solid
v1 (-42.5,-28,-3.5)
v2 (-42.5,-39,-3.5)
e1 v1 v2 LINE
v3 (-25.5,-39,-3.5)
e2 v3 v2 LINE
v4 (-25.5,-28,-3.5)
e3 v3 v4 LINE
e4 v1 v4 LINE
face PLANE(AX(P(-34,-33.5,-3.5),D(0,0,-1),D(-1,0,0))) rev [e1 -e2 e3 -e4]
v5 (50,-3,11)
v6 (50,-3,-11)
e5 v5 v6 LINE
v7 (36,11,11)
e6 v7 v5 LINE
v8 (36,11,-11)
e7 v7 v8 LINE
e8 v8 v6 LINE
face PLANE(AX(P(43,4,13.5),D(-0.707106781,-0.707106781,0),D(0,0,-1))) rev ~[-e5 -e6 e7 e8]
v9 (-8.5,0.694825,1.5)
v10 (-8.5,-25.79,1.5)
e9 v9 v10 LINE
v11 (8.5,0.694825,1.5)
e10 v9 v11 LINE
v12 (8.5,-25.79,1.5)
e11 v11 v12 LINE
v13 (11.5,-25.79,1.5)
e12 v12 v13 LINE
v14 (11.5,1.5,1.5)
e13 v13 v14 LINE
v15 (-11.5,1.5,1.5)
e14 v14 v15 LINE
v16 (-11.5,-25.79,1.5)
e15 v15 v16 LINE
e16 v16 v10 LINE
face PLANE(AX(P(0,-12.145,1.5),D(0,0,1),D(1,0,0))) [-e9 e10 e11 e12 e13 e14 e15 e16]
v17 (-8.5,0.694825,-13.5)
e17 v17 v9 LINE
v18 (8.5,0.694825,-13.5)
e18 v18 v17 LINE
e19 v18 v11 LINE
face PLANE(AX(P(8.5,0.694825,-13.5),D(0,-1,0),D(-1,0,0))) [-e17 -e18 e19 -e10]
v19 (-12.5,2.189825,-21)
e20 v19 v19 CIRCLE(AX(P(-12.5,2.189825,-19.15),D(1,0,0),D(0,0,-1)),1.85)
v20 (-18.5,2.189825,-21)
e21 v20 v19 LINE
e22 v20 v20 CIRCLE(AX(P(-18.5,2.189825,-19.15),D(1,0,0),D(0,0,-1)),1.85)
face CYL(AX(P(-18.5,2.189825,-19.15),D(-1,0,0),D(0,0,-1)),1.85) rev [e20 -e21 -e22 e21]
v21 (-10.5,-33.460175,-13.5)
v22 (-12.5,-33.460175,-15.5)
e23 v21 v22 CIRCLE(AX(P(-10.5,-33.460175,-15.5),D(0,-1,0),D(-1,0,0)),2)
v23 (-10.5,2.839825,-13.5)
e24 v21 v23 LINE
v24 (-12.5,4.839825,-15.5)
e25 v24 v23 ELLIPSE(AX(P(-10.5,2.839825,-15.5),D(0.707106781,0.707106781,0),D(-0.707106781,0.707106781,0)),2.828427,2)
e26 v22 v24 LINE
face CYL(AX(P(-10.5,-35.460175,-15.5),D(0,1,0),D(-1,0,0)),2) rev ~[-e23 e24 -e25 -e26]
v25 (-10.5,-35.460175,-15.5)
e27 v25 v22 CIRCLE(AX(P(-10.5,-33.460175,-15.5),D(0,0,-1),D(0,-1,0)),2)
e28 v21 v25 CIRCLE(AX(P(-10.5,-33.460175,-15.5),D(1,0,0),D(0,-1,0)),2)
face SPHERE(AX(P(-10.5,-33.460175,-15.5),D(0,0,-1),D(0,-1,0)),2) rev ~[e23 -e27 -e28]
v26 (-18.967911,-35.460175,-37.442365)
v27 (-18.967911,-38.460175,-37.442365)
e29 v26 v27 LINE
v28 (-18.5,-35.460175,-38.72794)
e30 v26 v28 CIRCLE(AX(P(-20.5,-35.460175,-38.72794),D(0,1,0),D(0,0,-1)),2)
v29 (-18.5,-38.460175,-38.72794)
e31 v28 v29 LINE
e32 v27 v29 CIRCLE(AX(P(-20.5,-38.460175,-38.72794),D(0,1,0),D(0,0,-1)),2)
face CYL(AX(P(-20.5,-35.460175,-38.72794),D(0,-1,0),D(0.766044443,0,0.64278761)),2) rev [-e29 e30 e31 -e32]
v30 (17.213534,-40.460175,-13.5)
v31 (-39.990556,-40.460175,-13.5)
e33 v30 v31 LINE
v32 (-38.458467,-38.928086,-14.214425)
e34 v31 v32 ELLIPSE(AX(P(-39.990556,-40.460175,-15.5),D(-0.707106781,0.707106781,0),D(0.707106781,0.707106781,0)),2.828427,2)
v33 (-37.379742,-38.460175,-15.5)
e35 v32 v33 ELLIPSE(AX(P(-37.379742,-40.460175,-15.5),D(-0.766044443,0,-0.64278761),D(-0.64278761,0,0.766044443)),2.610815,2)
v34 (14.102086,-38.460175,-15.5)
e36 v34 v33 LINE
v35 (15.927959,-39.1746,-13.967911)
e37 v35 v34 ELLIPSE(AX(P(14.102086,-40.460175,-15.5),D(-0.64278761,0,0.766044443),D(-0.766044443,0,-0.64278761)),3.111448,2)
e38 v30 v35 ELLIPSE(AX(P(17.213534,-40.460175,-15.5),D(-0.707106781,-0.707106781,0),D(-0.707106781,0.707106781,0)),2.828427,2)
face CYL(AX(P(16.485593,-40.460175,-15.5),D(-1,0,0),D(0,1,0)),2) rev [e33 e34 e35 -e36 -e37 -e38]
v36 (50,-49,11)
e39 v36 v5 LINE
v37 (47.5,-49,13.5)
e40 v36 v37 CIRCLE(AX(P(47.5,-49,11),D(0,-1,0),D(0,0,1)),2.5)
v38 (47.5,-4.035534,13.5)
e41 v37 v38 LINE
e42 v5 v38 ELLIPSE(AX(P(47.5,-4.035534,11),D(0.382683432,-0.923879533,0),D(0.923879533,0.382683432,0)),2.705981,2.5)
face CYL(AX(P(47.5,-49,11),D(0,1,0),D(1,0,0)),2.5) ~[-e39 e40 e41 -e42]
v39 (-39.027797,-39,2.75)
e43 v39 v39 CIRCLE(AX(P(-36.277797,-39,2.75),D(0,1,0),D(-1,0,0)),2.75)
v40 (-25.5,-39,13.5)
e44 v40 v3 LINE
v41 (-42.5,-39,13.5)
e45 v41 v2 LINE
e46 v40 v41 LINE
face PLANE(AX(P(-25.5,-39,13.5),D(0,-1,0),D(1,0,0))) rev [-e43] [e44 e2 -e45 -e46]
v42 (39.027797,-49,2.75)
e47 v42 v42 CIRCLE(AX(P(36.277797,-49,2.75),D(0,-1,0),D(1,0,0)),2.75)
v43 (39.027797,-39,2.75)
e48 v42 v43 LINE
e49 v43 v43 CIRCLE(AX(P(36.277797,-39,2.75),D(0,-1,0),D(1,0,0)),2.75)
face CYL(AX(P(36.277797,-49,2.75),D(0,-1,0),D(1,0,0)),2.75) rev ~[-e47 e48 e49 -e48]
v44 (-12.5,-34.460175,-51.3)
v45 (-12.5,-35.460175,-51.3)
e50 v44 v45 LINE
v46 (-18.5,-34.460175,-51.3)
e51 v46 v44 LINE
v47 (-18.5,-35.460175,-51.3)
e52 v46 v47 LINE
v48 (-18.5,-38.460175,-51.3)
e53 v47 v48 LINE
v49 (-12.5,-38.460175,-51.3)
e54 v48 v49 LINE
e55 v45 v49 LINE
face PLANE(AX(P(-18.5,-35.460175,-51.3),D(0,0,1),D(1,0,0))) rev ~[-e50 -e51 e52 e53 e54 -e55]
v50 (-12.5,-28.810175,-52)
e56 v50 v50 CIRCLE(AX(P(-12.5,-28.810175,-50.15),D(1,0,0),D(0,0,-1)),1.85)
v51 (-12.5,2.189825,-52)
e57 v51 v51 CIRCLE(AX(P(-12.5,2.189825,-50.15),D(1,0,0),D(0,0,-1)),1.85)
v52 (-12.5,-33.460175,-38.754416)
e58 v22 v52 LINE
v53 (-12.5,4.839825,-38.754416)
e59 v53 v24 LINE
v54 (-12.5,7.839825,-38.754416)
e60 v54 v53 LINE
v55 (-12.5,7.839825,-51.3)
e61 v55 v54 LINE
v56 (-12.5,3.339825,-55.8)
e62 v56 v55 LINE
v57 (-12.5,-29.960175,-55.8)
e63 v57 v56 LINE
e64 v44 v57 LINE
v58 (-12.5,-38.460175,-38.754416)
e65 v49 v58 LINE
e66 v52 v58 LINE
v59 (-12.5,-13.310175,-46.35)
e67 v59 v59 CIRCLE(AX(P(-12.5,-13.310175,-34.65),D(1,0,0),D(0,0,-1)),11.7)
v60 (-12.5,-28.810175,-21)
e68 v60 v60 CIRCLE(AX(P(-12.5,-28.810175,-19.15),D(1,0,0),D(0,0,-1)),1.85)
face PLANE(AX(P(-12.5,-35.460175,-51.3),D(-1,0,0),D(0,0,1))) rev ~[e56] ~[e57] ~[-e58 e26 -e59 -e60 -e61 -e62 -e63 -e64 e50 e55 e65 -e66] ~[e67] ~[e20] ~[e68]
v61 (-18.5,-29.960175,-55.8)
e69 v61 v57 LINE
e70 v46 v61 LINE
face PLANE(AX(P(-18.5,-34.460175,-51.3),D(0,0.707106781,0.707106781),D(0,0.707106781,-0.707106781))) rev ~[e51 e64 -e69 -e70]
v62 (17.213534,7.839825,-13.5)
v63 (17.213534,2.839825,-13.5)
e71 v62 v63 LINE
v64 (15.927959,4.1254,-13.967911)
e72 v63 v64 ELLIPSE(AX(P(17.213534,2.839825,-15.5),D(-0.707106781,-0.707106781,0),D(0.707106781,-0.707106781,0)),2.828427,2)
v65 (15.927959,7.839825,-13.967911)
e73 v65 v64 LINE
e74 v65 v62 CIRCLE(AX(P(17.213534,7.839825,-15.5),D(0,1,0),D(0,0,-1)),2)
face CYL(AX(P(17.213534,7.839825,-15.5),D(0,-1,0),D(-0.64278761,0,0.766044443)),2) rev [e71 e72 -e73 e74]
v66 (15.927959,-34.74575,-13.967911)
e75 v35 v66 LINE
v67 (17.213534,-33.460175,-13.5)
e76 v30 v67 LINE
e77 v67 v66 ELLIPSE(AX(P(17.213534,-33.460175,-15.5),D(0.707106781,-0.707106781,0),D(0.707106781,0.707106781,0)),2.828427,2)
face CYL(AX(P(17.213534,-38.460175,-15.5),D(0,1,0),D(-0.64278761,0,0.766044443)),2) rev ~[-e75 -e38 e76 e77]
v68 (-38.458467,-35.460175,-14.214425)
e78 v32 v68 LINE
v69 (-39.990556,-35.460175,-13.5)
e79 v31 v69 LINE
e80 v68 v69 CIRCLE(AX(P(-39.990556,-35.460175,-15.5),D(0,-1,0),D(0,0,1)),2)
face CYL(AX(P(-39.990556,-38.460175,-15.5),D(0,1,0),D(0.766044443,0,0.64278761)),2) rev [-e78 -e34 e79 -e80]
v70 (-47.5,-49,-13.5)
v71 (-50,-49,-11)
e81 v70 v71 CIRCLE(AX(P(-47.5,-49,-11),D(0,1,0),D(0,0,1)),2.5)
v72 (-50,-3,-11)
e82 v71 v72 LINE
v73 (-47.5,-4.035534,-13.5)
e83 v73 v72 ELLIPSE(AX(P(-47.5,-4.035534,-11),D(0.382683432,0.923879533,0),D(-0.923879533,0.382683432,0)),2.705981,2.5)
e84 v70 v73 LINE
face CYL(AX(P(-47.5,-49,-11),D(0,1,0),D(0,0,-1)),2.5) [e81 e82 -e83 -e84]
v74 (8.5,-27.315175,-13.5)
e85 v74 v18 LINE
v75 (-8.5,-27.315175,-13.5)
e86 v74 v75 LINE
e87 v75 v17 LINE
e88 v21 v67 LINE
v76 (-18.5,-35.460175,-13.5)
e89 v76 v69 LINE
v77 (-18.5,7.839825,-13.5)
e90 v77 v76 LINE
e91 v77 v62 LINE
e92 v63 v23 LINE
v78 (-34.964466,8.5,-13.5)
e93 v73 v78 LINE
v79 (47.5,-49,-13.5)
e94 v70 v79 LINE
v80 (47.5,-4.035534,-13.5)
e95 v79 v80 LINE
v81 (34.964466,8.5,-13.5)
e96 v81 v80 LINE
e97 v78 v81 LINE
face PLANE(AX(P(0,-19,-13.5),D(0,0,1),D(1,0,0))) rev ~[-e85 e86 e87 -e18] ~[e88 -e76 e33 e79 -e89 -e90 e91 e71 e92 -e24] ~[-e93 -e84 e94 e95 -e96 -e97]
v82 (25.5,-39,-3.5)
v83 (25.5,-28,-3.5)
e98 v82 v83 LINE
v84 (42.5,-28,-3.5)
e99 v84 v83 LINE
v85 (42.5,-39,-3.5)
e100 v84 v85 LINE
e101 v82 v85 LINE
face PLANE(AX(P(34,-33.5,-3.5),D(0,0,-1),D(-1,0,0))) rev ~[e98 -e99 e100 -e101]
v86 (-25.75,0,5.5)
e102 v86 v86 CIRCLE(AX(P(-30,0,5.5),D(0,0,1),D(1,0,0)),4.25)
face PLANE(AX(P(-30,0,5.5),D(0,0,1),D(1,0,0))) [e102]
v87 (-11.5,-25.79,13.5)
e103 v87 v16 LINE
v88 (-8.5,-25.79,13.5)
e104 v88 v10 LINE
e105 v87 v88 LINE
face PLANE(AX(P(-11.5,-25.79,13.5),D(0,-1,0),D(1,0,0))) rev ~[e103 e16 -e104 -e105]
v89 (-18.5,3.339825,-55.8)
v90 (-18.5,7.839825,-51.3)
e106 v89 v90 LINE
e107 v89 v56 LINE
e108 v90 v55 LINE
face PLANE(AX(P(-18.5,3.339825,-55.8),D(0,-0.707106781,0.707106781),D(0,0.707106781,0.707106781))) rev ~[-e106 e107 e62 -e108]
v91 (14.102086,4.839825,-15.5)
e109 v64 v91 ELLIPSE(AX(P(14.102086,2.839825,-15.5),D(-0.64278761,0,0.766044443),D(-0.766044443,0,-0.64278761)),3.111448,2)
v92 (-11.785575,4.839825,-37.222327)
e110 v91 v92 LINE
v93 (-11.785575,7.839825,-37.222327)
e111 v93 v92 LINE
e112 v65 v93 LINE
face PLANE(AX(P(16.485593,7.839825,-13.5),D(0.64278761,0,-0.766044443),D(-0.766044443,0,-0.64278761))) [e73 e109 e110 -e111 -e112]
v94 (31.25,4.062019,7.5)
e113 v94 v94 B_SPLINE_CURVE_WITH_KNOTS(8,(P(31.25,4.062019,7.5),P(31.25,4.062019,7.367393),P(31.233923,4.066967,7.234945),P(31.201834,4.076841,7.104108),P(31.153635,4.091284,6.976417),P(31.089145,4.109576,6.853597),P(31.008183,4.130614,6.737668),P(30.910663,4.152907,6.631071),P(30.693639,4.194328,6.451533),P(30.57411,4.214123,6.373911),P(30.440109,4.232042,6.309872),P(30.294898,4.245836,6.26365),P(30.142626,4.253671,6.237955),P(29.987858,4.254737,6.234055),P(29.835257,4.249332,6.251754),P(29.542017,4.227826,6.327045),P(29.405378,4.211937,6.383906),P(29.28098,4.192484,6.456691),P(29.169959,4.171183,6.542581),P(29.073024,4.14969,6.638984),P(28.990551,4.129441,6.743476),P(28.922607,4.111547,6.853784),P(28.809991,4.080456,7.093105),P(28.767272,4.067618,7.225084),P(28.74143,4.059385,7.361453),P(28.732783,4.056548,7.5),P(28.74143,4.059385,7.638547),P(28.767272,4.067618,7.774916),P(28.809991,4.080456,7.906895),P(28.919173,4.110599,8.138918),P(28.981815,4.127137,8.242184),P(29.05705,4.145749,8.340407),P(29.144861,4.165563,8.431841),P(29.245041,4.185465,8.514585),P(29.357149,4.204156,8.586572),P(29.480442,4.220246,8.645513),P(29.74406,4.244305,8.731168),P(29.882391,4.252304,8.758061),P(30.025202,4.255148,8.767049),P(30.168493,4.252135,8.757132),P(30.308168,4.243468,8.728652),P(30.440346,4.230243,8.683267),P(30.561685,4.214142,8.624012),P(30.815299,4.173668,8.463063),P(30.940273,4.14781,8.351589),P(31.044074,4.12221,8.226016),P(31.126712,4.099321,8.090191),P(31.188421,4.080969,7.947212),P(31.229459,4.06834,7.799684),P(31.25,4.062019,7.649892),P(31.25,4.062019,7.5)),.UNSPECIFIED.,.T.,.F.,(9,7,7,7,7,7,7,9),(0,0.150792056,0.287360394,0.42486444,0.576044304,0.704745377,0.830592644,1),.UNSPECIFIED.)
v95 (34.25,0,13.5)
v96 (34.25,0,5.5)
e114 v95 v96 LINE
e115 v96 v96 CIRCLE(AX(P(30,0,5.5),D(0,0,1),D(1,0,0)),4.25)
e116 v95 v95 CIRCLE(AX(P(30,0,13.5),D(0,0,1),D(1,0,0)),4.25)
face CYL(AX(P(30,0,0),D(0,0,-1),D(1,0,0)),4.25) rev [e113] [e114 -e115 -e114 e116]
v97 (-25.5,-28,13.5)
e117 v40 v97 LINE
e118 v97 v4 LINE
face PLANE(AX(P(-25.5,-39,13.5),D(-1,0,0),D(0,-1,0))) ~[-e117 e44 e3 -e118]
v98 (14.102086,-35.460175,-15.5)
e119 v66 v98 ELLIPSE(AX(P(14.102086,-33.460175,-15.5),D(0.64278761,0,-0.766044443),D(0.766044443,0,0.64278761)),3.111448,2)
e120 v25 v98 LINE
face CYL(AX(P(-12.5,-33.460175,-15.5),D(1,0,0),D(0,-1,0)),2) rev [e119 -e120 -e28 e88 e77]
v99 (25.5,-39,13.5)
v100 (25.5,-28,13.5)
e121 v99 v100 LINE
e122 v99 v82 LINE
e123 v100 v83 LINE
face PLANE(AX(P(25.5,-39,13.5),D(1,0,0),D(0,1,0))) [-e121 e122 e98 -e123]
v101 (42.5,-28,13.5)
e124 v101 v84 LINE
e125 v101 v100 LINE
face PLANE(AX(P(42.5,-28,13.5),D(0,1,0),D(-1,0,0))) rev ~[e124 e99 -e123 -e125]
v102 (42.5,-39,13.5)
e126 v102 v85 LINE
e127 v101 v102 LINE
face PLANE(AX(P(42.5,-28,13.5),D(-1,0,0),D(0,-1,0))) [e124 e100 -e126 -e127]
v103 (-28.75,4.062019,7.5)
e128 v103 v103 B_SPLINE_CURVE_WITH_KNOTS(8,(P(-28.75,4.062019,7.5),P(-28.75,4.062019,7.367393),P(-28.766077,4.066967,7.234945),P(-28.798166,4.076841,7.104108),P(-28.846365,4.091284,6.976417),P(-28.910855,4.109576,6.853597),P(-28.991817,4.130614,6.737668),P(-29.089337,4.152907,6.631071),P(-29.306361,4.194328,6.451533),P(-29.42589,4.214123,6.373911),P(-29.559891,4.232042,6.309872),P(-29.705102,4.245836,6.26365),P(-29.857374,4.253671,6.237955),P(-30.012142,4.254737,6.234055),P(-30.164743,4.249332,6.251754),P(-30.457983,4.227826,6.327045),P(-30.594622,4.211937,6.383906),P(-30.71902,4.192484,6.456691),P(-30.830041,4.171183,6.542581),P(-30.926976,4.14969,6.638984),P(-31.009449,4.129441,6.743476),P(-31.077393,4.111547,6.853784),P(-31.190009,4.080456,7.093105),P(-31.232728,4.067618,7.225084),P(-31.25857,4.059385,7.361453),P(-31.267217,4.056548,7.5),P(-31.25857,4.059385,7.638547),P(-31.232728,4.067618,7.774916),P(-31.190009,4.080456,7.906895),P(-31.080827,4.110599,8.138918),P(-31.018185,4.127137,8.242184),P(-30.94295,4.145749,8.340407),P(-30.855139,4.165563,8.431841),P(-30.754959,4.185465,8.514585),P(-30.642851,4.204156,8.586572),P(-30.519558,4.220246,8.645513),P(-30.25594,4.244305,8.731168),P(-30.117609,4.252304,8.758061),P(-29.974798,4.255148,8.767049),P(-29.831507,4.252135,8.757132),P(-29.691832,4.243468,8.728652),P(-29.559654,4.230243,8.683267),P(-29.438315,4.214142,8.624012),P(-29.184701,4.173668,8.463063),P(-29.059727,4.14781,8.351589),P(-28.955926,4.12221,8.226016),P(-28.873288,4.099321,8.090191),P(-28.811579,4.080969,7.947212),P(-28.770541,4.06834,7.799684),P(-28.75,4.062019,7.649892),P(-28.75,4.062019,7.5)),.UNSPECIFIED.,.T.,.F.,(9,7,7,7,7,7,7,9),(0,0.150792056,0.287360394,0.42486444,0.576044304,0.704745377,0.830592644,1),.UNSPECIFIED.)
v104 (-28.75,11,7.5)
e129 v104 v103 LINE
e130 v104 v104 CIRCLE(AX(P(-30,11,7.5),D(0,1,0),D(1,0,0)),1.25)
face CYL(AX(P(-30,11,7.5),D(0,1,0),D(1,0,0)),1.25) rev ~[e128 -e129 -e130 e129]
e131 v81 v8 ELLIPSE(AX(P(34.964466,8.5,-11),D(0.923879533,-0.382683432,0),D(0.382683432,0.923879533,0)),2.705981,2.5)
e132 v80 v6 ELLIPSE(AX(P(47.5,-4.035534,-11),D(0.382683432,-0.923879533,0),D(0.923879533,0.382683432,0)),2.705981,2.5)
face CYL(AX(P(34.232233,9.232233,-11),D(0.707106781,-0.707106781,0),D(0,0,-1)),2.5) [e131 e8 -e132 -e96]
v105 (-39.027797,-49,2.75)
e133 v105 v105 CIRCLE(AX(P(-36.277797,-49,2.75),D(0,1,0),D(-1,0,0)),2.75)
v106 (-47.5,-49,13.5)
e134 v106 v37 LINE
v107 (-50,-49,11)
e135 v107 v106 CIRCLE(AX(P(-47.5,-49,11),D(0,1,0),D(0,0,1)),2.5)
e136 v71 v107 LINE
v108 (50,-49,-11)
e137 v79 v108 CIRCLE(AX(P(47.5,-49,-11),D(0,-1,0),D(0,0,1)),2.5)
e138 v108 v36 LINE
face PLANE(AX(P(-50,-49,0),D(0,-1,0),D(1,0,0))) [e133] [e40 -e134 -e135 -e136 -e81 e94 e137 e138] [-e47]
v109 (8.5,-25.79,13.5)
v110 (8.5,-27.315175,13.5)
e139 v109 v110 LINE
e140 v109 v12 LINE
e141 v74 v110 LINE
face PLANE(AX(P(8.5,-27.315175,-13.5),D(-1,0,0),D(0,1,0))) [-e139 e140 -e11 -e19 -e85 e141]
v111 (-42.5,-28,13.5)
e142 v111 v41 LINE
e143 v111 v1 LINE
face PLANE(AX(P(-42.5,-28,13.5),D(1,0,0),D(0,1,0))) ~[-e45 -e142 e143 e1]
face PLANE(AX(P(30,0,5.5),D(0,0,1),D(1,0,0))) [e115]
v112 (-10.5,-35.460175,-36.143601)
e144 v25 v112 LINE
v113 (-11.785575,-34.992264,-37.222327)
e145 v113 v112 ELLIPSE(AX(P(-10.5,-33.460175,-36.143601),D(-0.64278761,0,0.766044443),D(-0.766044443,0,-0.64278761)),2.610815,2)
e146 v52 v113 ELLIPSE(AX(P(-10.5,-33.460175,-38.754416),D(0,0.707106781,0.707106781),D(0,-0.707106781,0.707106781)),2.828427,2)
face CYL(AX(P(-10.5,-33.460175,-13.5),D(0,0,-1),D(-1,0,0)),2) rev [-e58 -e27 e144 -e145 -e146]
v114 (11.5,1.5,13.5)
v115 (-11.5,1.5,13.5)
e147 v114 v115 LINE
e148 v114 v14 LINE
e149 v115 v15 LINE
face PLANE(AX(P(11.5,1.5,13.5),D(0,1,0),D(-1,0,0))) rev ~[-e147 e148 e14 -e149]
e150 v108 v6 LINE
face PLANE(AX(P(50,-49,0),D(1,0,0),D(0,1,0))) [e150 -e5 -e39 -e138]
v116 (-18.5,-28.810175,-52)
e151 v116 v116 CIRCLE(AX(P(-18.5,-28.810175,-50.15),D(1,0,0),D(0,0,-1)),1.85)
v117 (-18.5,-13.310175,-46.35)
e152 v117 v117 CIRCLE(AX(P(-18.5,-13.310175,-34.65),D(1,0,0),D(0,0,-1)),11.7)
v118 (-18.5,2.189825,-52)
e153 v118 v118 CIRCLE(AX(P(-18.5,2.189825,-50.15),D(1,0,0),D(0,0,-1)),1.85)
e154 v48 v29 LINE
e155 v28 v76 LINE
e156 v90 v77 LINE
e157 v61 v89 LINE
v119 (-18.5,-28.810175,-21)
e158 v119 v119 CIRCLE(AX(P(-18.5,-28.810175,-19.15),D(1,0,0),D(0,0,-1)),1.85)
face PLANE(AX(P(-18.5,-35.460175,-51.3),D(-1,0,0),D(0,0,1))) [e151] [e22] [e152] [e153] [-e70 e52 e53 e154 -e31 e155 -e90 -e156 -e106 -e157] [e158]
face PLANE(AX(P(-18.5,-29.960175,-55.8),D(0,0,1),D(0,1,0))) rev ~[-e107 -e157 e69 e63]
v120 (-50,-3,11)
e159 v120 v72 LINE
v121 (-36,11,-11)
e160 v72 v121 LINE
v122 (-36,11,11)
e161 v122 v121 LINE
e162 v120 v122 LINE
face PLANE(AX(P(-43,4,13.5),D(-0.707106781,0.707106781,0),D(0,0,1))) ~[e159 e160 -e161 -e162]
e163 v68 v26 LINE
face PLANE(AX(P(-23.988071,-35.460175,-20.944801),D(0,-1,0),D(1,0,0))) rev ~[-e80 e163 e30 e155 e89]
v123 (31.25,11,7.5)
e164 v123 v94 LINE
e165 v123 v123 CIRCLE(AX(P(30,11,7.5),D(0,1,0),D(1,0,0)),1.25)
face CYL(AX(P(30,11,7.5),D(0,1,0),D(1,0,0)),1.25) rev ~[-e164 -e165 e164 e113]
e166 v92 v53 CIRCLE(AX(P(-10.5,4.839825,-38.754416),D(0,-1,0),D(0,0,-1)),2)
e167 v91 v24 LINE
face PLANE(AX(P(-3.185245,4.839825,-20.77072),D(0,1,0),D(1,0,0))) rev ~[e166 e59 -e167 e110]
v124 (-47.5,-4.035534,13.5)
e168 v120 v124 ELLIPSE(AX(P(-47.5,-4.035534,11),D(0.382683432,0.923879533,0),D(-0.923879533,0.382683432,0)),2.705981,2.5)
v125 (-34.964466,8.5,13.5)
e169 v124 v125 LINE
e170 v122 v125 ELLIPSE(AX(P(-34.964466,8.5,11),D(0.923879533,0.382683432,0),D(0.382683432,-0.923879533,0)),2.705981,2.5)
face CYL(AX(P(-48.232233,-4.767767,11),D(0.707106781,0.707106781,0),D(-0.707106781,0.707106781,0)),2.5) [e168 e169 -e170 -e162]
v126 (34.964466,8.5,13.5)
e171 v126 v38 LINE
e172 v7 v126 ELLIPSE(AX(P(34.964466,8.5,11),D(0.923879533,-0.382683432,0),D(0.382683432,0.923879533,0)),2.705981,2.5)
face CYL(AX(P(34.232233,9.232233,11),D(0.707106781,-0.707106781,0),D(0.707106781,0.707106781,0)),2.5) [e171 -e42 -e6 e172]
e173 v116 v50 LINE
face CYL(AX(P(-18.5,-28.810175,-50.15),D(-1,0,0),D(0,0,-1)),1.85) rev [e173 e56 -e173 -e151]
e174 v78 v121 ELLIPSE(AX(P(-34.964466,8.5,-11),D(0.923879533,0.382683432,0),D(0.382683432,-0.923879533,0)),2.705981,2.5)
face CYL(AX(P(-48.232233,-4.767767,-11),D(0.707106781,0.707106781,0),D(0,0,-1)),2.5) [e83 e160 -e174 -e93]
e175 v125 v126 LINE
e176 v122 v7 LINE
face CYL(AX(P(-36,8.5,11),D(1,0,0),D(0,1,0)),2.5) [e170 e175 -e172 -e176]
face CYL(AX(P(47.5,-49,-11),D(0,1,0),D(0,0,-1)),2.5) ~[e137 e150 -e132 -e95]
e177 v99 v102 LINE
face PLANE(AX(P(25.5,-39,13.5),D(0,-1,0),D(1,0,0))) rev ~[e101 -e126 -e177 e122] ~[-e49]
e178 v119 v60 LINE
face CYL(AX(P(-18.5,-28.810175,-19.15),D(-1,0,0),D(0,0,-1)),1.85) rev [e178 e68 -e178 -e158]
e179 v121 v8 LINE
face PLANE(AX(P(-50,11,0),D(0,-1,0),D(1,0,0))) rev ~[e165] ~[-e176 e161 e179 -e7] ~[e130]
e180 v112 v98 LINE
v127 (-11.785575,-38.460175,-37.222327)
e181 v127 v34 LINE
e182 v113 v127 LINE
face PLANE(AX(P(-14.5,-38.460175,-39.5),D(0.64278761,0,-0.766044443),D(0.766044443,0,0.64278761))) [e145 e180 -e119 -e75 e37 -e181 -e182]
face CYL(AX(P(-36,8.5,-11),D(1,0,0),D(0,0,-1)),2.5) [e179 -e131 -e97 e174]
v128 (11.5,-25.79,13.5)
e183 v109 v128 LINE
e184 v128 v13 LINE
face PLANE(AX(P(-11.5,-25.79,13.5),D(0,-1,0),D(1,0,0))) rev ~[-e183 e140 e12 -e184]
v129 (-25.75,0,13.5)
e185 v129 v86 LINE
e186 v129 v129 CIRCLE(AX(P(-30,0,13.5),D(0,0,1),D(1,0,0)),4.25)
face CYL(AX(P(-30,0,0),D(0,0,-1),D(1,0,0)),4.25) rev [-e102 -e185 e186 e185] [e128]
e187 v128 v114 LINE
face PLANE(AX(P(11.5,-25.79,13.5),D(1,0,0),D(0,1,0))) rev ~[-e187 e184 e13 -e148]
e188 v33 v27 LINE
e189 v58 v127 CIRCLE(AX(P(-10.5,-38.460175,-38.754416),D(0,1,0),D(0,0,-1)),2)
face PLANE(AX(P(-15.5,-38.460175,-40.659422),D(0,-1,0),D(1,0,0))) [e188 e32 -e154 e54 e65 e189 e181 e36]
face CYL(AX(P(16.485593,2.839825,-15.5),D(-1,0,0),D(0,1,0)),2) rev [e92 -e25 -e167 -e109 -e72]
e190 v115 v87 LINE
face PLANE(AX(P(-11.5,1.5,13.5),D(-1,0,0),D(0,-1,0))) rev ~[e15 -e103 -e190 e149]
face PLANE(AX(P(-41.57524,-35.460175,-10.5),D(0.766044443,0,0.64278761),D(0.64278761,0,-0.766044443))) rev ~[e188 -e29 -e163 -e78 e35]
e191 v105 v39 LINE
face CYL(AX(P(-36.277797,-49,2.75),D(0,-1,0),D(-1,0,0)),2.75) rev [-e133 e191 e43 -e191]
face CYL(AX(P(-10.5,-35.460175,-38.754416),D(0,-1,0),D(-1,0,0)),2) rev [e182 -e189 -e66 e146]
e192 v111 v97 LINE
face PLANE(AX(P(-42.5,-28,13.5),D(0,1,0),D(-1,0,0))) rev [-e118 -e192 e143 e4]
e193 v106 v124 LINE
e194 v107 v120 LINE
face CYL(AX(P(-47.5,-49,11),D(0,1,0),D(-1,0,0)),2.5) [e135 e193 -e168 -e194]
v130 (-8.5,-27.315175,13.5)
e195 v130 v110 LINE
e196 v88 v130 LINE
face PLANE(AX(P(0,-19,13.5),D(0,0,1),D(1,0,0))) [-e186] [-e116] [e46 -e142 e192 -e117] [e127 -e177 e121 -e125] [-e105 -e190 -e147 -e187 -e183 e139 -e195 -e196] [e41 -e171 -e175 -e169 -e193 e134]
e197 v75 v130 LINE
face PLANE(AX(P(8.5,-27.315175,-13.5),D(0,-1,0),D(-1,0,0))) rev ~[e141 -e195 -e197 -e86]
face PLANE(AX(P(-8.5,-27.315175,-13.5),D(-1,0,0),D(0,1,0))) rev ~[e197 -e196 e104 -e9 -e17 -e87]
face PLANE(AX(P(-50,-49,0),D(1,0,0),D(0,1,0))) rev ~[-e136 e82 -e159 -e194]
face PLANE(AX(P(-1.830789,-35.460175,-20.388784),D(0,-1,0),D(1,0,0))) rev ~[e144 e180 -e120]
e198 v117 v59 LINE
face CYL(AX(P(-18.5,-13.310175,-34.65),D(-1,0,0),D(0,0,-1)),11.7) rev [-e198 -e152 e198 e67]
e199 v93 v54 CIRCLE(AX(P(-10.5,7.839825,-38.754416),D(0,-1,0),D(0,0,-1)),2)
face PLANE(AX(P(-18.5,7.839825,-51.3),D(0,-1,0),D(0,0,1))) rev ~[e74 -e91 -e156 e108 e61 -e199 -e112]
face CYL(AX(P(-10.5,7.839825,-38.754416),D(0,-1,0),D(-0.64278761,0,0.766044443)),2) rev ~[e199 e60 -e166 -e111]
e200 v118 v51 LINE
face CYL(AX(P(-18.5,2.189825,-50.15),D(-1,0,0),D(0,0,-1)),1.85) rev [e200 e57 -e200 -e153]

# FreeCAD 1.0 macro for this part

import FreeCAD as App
import Part
import Sketcher
Q = App.Units.Quantity


def edges_at(feature, points):
    """Names of the edges that pass closest to the given points."""
    edges = feature.Shape.Edges
    near = lambda p: min(range(len(edges)), key=lambda i: edges[i].distToShape(Part.Vertex(*p))[0])
    return sorted({f"Edge{near(p) + 1}" for p in points})

doc = App.newDocument("Part")
body = doc.addObject("PartDesign::Body", "Body")

# Sketch on XY plane
sketch1 = body.newObject("Sketcher::SketchObject", "Sketch")
sketch1.AttachmentSupport = (doc.getObject("XY_Plane"), [""])
sketch1.MapMode = "FlatFace"
sketch1.addGeometry(Part.LineSegment(App.Vector(-50, 11, 0), App.Vector(-50, -49, 0)), False)
sketch1.addGeometry(Part.LineSegment(App.Vector(-50, -49, 0), App.Vector(50, -49, 0)), False)
sketch1.addGeometry(Part.LineSegment(App.Vector(50, -49, 0), App.Vector(50, 11, 0)), False)
sketch1.addGeometry(Part.LineSegment(App.Vector(50, 11, 0), App.Vector(-50, 11, 0)), False)
sketch1.addGeometry(Part.Circle(App.Vector(-30, 0, 0), App.Vector(0, 0, 1), 4.2), False)
sketch1.addGeometry(Part.Circle(App.Vector(30, 0, 0), App.Vector(0, 0, 1), 4.2), False)
sketch1.addConstraint(Sketcher.Constraint("Coincident", 0, 2, 1, 1))
sketch1.addConstraint(Sketcher.Constraint("Coincident", 1, 2, 2, 1))
sketch1.addConstraint(Sketcher.Constraint("Coincident", 2, 2, 3, 1))
sketch1.addConstraint(Sketcher.Constraint("Coincident", 3, 2, 0, 1))
sketch1.addConstraint(Sketcher.Constraint("Vertical", 0))
sketch1.addConstraint(Sketcher.Constraint("Horizontal", 1))
sketch1.addConstraint(Sketcher.Constraint("Vertical", 2))
sketch1.addConstraint(Sketcher.Constraint("Horizontal", 3))
sketch1.addConstraint(Sketcher.Constraint("Equal", 4, 5))
sketch1.addConstraint(Sketcher.Constraint("Symmetric", 4, 3, 5, 3, -1, 1))
sketch1.addConstraint(Sketcher.Constraint("PointOnObject", 4, 3, -1))
sketch1.addConstraint(Sketcher.Constraint("Diameter", 4, Q("8.5 mm")))
sketch1.addConstraint(Sketcher.Constraint("DistanceX", 1, 1, 1, 2, Q("100 mm")))
sketch1.addConstraint(Sketcher.Constraint("DistanceY", 0, 2, 0, 1, Q("60 mm")))
sketch1.addConstraint(Sketcher.Constraint("DistanceX", 4, 3, -1, 1, Q("30 mm")))
sketch1.addConstraint(Sketcher.Constraint("DistanceX", 0, 2, -1, 1, Q("50 mm")))
sketch1.addConstraint(Sketcher.Constraint("DistanceY", 0, 2, -1, 1, Q("49 mm")))
pad1 = body.newObject("PartDesign::Pad", "Pad")
pad1.Profile = sketch1
pad1.Length = 27
pad1.Midplane = True

# Sketch on XY plane
sketch2 = body.newObject("Sketcher::SketchObject", "Sketch001")
sketch2.AttachmentSupport = (doc.getObject("XY_Plane"), [""])
sketch2.MapMode = "FlatFace"
sketch2.AttachmentOffset = App.Placement(App.Vector(0, 0, -13.5), App.Rotation())
sketch2.addGeometry(Part.Circle(App.Vector(30, 0, 0), App.Vector(0, 0, 1), 7), False)
sketch2.addGeometry(Part.Circle(App.Vector(-30, 0, 0), App.Vector(0, 0, 1), 7), False)
sketch2.addConstraint(Sketcher.Constraint("Equal", 0, 1))
sketch2.addConstraint(Sketcher.Constraint("Symmetric", 0, 3, 1, 3, -1, 1))
sketch2.addConstraint(Sketcher.Constraint("PointOnObject", 0, 3, -1))
sketch2.addConstraint(Sketcher.Constraint("Diameter", 0, Q("14 mm")))
sketch2.addConstraint(Sketcher.Constraint("DistanceX", -1, 1, 0, 3, Q("30 mm")))
pad2 = body.newObject("PartDesign::Pad", "Pad001")
pad2.Profile = sketch2
pad2.Length = 10
doc.recompute()

chamfer = body.newObject("PartDesign::Chamfer", "Chamfer")
chamfer.Base = (pad2, edges_at(pad2, [(-50, 11, 0), (50, 11, 0)]))
chamfer.Size = 14
doc.recompute()

fillet = body.newObject("PartDesign::Fillet", "Fillet")
fillet.Base = (chamfer, edges_at(chamfer, [
    (-50, -26, -13.5),
    (-50, -26, 13.5),
    (0, 11, -13.5),
    (43, 4, -13.5),
    (-43, 4, -13.5),
    (0, 11, 13.5),
    (50, -26, 13.5),
    (43, 4, 13.5),
    (-43, 4, 13.5),
    (50, -26, -13.5),
]))
fillet.Radius = 2.5

# Sketch on XY plane
sketch3 = body.newObject("Sketcher::SketchObject", "Sketch002")
sketch3.AttachmentSupport = (doc.getObject("XY_Plane"), [""])
sketch3.MapMode = "FlatFace"
sketch3.AttachmentOffset = App.Placement(App.Vector(0, 0, 13.5), App.Rotation())
sketch3.addGeometry(Part.LineSegment(App.Vector(12, 2, 0), App.Vector(-12, 2, 0)), False)
sketch3.addGeometry(Part.LineSegment(App.Vector(-12, 2, 0), App.Vector(-12, -26, 0)), False)
sketch3.addGeometry(Part.LineSegment(App.Vector(-12, -26, 0), App.Vector(12, -26, 0)), False)
sketch3.addGeometry(Part.LineSegment(App.Vector(12, -26, 0), App.Vector(12, 2, 0)), False)
sketch3.addConstraint(Sketcher.Constraint("Coincident", 0, 2, 1, 1))
sketch3.addConstraint(Sketcher.Constraint("Coincident", 1, 2, 2, 1))
sketch3.addConstraint(Sketcher.Constraint("Coincident", 2, 2, 3, 1))
sketch3.addConstraint(Sketcher.Constraint("Coincident", 3, 2, 0, 1))
sketch3.addConstraint(Sketcher.Constraint("Horizontal", 0))
sketch3.addConstraint(Sketcher.Constraint("Vertical", 1))
sketch3.addConstraint(Sketcher.Constraint("Horizontal", 2))
sketch3.addConstraint(Sketcher.Constraint("Vertical", 3))
sketch3.addConstraint(Sketcher.Constraint("DistanceX", 0, 2, 0, 1, Q("23 mm")))
sketch3.addConstraint(Sketcher.Constraint("DistanceY", 1, 2, 1, 1, Q("27.29 mm")))
sketch3.addConstraint(Sketcher.Constraint("DistanceX", 0, 2, -1, 1, Q("11.5 mm")))
sketch3.addConstraint(Sketcher.Constraint("DistanceY", -1, 1, 0, 2, Q("1.5 mm")))
pocket1 = body.newObject("PartDesign::Pocket", "Pocket")
pocket1.Profile = sketch3
pocket1.Length = 12

# Sketch on XZ plane
sketch4 = body.newObject("Sketcher::SketchObject", "Sketch003")
sketch4.AttachmentSupport = (doc.getObject("XZ_Plane"), [""])
sketch4.MapMode = "FlatFace"
sketch4.AttachmentOffset = App.Placement(App.Vector(0, 0, -11), App.Rotation())
sketch4.addGeometry(Part.Circle(App.Vector(30, 7.5, 0), App.Vector(0, 0, 1), 1.2), False)
sketch4.addGeometry(Part.Circle(App.Vector(-30, 7.5, 0), App.Vector(0, 0, 1), 1.2), False)
sketch4.addConstraint(Sketcher.Constraint("Equal", 0, 1))
sketch4.addConstraint(Sketcher.Constraint("Symmetric", 0, 3, 1, 3, -2))
sketch4.addConstraint(Sketcher.Constraint("Diameter", 0, Q("2.5 mm")))
sketch4.addConstraint(Sketcher.Constraint("DistanceX", -1, 1, 0, 3, Q("30 mm")))
sketch4.addConstraint(Sketcher.Constraint("DistanceY", -1, 1, 0, 3, Q("7.5 mm")))
pocket2 = body.newObject("PartDesign::Pocket", "Pocket001")
pocket2.Profile = sketch4
pocket2.Length = 12
pocket2.Reversed = True

# Sketch on XZ plane
sketch5 = body.newObject("Sketcher::SketchObject", "Sketch004")
sketch5.AttachmentSupport = (doc.getObject("XZ_Plane"), [""])
sketch5.MapMode = "FlatFace"
sketch5.AttachmentOffset = App.Placement(App.Vector(0, 0, 49), App.Rotation())
sketch5.addGeometry(Part.Circle(App.Vector(36.3, 2.8, 0), App.Vector(0, 0, 1), 2.8), False)
sketch5.addConstraint(Sketcher.Constraint("Diameter", 0, Q("5.5 mm")))
sketch5.addConstraint(Sketcher.Constraint("DistanceY", -1, 1, 0, 3, Q("2.75 mm")))
sketch5.addConstraint(Sketcher.Constraint("DistanceX", -1, 1, 0, 3, Q("36.277797 mm")))
pocket3 = body.newObject("PartDesign::Pocket", "Pocket002")
pocket3.Profile = sketch5
pocket3.Length = 10

# Sketch on XY plane
sketch6 = body.newObject("Sketcher::SketchObject", "Sketch005")
sketch6.AttachmentSupport = (doc.getObject("XY_Plane"), [""])
sketch6.MapMode = "FlatFace"
sketch6.AttachmentOffset = App.Placement(App.Vector(0, 0, 13.5), App.Rotation())
sketch6.addGeometry(Part.LineSegment(App.Vector(26, -39, 0), App.Vector(42, -39, 0)), False)
sketch6.addGeometry(Part.LineSegment(App.Vector(42, -39, 0), App.Vector(42, -28, 0)), False)
sketch6.addGeometry(Part.LineSegment(App.Vector(42, -28, 0), App.Vector(26, -28, 0)), False)
sketch6.addGeometry(Part.LineSegment(App.Vector(26, -28, 0), App.Vector(26, -39, 0)), False)
sketch6.addConstraint(Sketcher.Constraint("Coincident", 0, 2, 1, 1))
sketch6.addConstraint(Sketcher.Constraint("Coincident", 1, 2, 2, 1))
sketch6.addConstraint(Sketcher.Constraint("Coincident", 2, 2, 3, 1))
sketch6.addConstraint(Sketcher.Constraint("Coincident", 3, 2, 0, 1))
sketch6.addConstraint(Sketcher.Constraint("Horizontal", 0))
sketch6.addConstraint(Sketcher.Constraint("Vertical", 1))
sketch6.addConstraint(Sketcher.Constraint("Horizontal", 2))
sketch6.addConstraint(Sketcher.Constraint("Vertical", 3))
sketch6.addConstraint(Sketcher.Constraint("DistanceX", 0, 1, 0, 2, Q("17 mm")))
sketch6.addConstraint(Sketcher.Constraint("DistanceY", 1, 1, 1, 2, Q("11 mm")))
sketch6.addConstraint(Sketcher.Constraint("DistanceY", 0, 2, -1, 1, Q("39 mm")))
sketch6.addConstraint(Sketcher.Constraint("DistanceX", -1, 1, 0, 2, Q("42.5 mm")))
pocket4 = body.newObject("PartDesign::Pocket", "Pocket003")
pocket4.Profile = sketch6
pocket4.Length = 17
doc.recompute()

mirrored = body.newObject("PartDesign::Mirrored", "Mirrored")
mirrored.Originals = [pocket3, pocket4]
mirrored.MirrorPlane = (doc.getObject("YZ_Plane"), [""])
body.Tip = mirrored

# Sketch on XY plane
sketch7 = body.newObject("Sketcher::SketchObject", "Sketch006")
sketch7.AttachmentSupport = (doc.getObject("XY_Plane"), [""])
sketch7.MapMode = "FlatFace"
sketch7.AttachmentOffset = App.Placement(App.Vector(0, 0, -13.5), App.Rotation())
sketch7.addGeometry(Part.LineSegment(App.Vector(8, 1, 0), App.Vector(8, -27, 0)), False)
sketch7.addGeometry(Part.LineSegment(App.Vector(8, -27, 0), App.Vector(-8, -27, 0)), False)
sketch7.addGeometry(Part.LineSegment(App.Vector(-8, -27, 0), App.Vector(-8, 1, 0)), False)
sketch7.addGeometry(Part.LineSegment(App.Vector(-8, 1, 0), App.Vector(8, 1, 0)), False)
sketch7.addConstraint(Sketcher.Constraint("Coincident", 0, 2, 1, 1))
sketch7.addConstraint(Sketcher.Constraint("Coincident", 1, 2, 2, 1))
sketch7.addConstraint(Sketcher.Constraint("Coincident", 2, 2, 3, 1))
sketch7.addConstraint(Sketcher.Constraint("Coincident", 3, 2, 0, 1))
sketch7.addConstraint(Sketcher.Constraint("Vertical", 0))
sketch7.addConstraint(Sketcher.Constraint("Horizontal", 1))
sketch7.addConstraint(Sketcher.Constraint("Vertical", 2))
sketch7.addConstraint(Sketcher.Constraint("Horizontal", 3))
sketch7.addConstraint(Sketcher.Constraint("DistanceX", 1, 2, 1, 1, Q("17 mm")))
sketch7.addConstraint(Sketcher.Constraint("DistanceY", 0, 2, 0, 1, Q("28.01 mm")))
sketch7.addConstraint(Sketcher.Constraint("DistanceX", -1, 1, 0, 2, Q("8.5 mm")))
sketch7.addConstraint(Sketcher.Constraint("DistanceY", 0, 2, -1, 1, Q("27.315175 mm")))
pocket5 = body.newObject("PartDesign::Pocket", "Pocket004")
pocket5.Profile = sketch7
pocket5.Type = "ThroughAll"
pocket5.Reversed = True

# Sketch on XY plane
sketch8 = body.newObject("Sketcher::SketchObject", "Sketch007")
sketch8.AttachmentSupport = (doc.getObject("XY_Plane"), [""])
sketch8.MapMode = "FlatFace"
sketch8.AttachmentOffset = App.Placement(App.Vector(0, 0, -3.5), App.Rotation())
sketch8.addGeometry(Part.Circle(App.Vector(30, 0, 0), App.Vector(0, 0, 1), 4.2), False)
sketch8.addGeometry(Part.Circle(App.Vector(-30, 0, 0), App.Vector(0, 0, 1), 4.2), False)
sketch8.addConstraint(Sketcher.Constraint("Equal", 0, 1))
sketch8.addConstraint(Sketcher.Constraint("Symmetric", 0, 3, 1, 3, -1, 1))
sketch8.addConstraint(Sketcher.Constraint("PointOnObject", 0, 3, -1))
sketch8.addConstraint(Sketcher.Constraint("Diameter", 0, Q("8.5 mm")))
sketch8.addConstraint(Sketcher.Constraint("DistanceX", -1, 1, 0, 3, Q("30 mm")))
pad3 = body.newObject("PartDesign::Pad", "Pad002")
pad3.Profile = sketch8
pad3.Length = 9

# Sketch on YZ plane
sketch9 = body.newObject("Sketcher::SketchObject", "Sketch008")
sketch9.AttachmentSupport = (doc.getObject("YZ_Plane"), [""])
sketch9.MapMode = "FlatFace"
sketch9.AttachmentOffset = App.Placement(App.Vector(0, 0, -18.5), App.Rotation())
sketch9.addGeometry(Part.LineSegment(App.Vector(-30, -55.8, 0), App.Vector(3.3, -55.8, 0)), False)
sketch9.addGeometry(Part.LineSegment(App.Vector(3.3, -55.8, 0), App.Vector(7.8, -51.3, 0)), False)
sketch9.addGeometry(Part.LineSegment(App.Vector(7.8, -51.3, 0), App.Vector(7.8, -11, 0)), False)
sketch9.addGeometry(Part.LineSegment(App.Vector(7.8, -11, 0), App.Vector(-34.5, -11, 0)), False)
sketch9.addGeometry(Part.LineSegment(App.Vector(-34.5, -11, 0), App.Vector(-34.5, -51.3, 0)), False)
sketch9.addGeometry(Part.LineSegment(App.Vector(-34.5, -51.3, 0), App.Vector(-30, -55.8, 0)), False)
sketch9.addGeometry(Part.Circle(App.Vector(-28.8, -19.1, 0), App.Vector(0, 0, 1), 1.9), False)
sketch9.addGeometry(Part.Circle(App.Vector(-28.8, -50.1, 0), App.Vector(0, 0, 1), 1.9), False)
sketch9.addGeometry(Part.Circle(App.Vector(2.2, -19.1, 0), App.Vector(0, 0, 1), 1.9), False)
sketch9.addGeometry(Part.Circle(App.Vector(-13.3, -34.6, 0), App.Vector(0, 0, 1), 11.7), False)
sketch9.addGeometry(Part.Circle(App.Vector(2.2, -50.1, 0), App.Vector(0, 0, 1), 1.9), False)
sketch9.addConstraint(Sketcher.Constraint("Coincident", 0, 2, 1, 1))
sketch9.addConstraint(Sketcher.Constraint("Coincident", 1, 2, 2, 1))
sketch9.addConstraint(Sketcher.Constraint("Coincident", 2, 2, 3, 1))
sketch9.addConstraint(Sketcher.Constraint("Coincident", 3, 2, 4, 1))
sketch9.addConstraint(Sketcher.Constraint("Coincident", 4, 2, 5, 1))
sketch9.addConstraint(Sketcher.Constraint("Coincident", 5, 2, 0, 1))
sketch9.addConstraint(Sketcher.Constraint("Horizontal", 0))
sketch9.addConstraint(Sketcher.Constraint("Vertical", 2))
sketch9.addConstraint(Sketcher.Constraint("Horizontal", 3))
sketch9.addConstraint(Sketcher.Constraint("Vertical", 4))
sketch9.addConstraint(Sketcher.Constraint("Equal", 6, 7))
sketch9.addConstraint(Sketcher.Constraint("Equal", 7, 8))
sketch9.addConstraint(Sketcher.Constraint("Equal", 8, 10))
sketch9.addConstraint(Sketcher.Constraint("Perpendicular", 1, 5))
sketch9.addConstraint(Sketcher.Constraint("Horizontal", 6, 3, 8, 3))
sketch9.addConstraint(Sketcher.Constraint("Horizontal", 7, 3, 10, 3))
sketch9.addConstraint(Sketcher.Constraint("Horizontal", 1, 2, 4, 2))
sketch9.addConstraint(Sketcher.Constraint("Vertical", 6, 3, 7, 3))
sketch9.addConstraint(Sketcher.Constraint("Vertical", 8, 3, 10, 3))
sketch9.addConstraint(Sketcher.Constraint("Equal", 1, 5))
sketch9.addConstraint(Sketcher.Constraint("Diameter", 6, Q("3.7 mm")))
sketch9.addConstraint(Sketcher.Constraint("Diameter", 9, Q("23.4 mm")))
sketch9.addConstraint(Sketcher.Constraint("DistanceX", 0, 1, 0, 2, Q("33.3 mm")))
sketch9.addConstraint(Sketcher.Constraint("DistanceX", 3, 2, 3, 1, Q("42.3 mm")))
sketch9.addConstraint(Sketcher.Constraint("DistanceY", 2, 1, 2, 2, Q("40.3 mm")))
sketch9.addConstraint(Sketcher.Constraint("DistanceY", 2, 2, -1, 1, Q("11 mm")))
sketch9.addConstraint(Sketcher.Constraint("DistanceY", 7, 3, 6, 3, Q("31 mm")))
sketch9.addConstraint(Sketcher.Constraint("DistanceX", 6, 3, 8, 3, Q("31 mm")))
sketch9.addConstraint(Sketcher.Constraint("DistanceX", 6, 3, 9, 3, Q("15.5 mm")))
sketch9.addConstraint(Sketcher.Constraint("DistanceY", 9, 3, 6, 3, Q("15.5 mm")))
sketch9.addConstraint(Sketcher.Constraint("DistanceY", 6, 3, -1, 1, Q("19.15 mm")))
sketch9.addConstraint(Sketcher.Constraint("DistanceX", 10, 3, 0, 2, Q("1.15 mm")))
sketch9.addConstraint(Sketcher.Constraint("DistanceX", 6, 3, -1, 1, Q("28.810175 mm")))
pad4 = body.newObject("PartDesign::Pad", "Pad003")
pad4.Profile = sketch9
pad4.Length = 6

# Sketch on XZ plane
sketch10 = body.newObject("Sketcher::SketchObject", "Sketch009")
sketch10.AttachmentSupport = (doc.getObject("XZ_Plane"), [""])
sketch10.MapMode = "FlatFace"
sketch10.AttachmentOffset = App.Placement(App.Vector(0, 0, 38.460175), App.Rotation())
sketch10.addGeometry(Part.LineSegment(App.Vector(-14, -40, 0), App.Vector(20, -10, 0)), False)
sketch10.addGeometry(Part.LineSegment(App.Vector(20, -10, 0), App.Vector(-14, -10, 0)), False)
sketch10.addGeometry(Part.LineSegment(App.Vector(-14, -10, 0), App.Vector(-14, -40, 0)), False)
sketch10.addConstraint(Sketcher.Constraint("Coincident", 0, 2, 1, 1))
sketch10.addConstraint(Sketcher.Constraint("Coincident", 1, 2, 2, 1))
sketch10.addConstraint(Sketcher.Constraint("Coincident", 2, 2, 0, 1))
sketch10.addConstraint(Sketcher.Constraint("Horizontal", 1))
sketch10.addConstraint(Sketcher.Constraint("Vertical", 2))
sketch10.addConstraint(Sketcher.Constraint("DistanceY", 2, 2, 2, 1, Q("29 mm")))
sketch10.addConstraint(Sketcher.Constraint("Angle", 0, Q("40 deg")))
sketch10.addConstraint(Sketcher.Constraint("DistanceY", 0, 2, -1, 1, Q("10.5 mm")))
sketch10.addConstraint(Sketcher.Constraint("DistanceX", 1, 2, -1, 1, Q("14.5 mm")))
pad5 = body.newObject("PartDesign::Pad", "Pad004")
pad5.Profile = sketch10
pad5.Length = 3
pad5.Reversed = True

# Sketch on XZ plane
sketch11 = body.newObject("Sketcher::SketchObject", "Sketch010")
sketch11.AttachmentSupport = (doc.getObject("XZ_Plane"), [""])
sketch11.MapMode = "FlatFace"
sketch11.AttachmentOffset = App.Placement(App.Vector(0, 0, 34.460175), App.Rotation())
sketch11.addGeometry(Part.LineSegment(App.Vector(-18, -9, 0), App.Vector(-18, -51, 0)), False)
sketch11.addGeometry(Part.LineSegment(App.Vector(-18, -51, 0), App.Vector(-12, -51, 0)), False)
sketch11.addGeometry(Part.LineSegment(App.Vector(-12, -51, 0), App.Vector(-12, -9, 0)), False)
sketch11.addGeometry(Part.LineSegment(App.Vector(-12, -9, 0), App.Vector(-18, -9, 0)), False)
sketch11.addConstraint(Sketcher.Constraint("Coincident", 0, 2, 1, 1))
sketch11.addConstraint(Sketcher.Constraint("Coincident", 1, 2, 2, 1))
sketch11.addConstraint(Sketcher.Constraint("Coincident", 2, 2, 3, 1))
sketch11.addConstraint(Sketcher.Constraint("Coincident", 3, 2, 0, 1))
sketch11.addConstraint(Sketcher.Constraint("Vertical", 0))
sketch11.addConstraint(Sketcher.Constraint("Horizontal", 1))
sketch11.addConstraint(Sketcher.Constraint("Vertical", 2))
sketch11.addConstraint(Sketcher.Constraint("Horizontal", 3))
sketch11.addConstraint(Sketcher.Constraint("DistanceX", 1, 1, 1, 2, Q("6 mm")))
sketch11.addConstraint(Sketcher.Constraint("DistanceX", 0, 2, -1, 1, Q("18.5 mm")))
sketch11.addConstraint(Sketcher.Constraint("DistanceY", 0, 2, -1, 1, Q("51.3 mm")))
sketch11.addConstraint(Sketcher.Constraint("DistanceY", 0, 2, 0, 1, Q("42.718706 mm")))
pad6 = body.newObject("PartDesign::Pad", "Pad005")
pad6.Profile = sketch11
pad6.Length = 1

# Sketch on XZ plane
sketch12 = body.newObject("Sketcher::SketchObject", "Sketch011")
sketch12.AttachmentSupport = (doc.getObject("XZ_Plane"), [""])
sketch12.MapMode = "FlatFace"
sketch12.AttachmentOffset = App.Placement(App.Vector(0, 0, 35.460175), App.Rotation())
sketch12.addGeometry(Part.LineSegment(App.Vector(-41.6, -10.5, 0), App.Vector(-18.5, -38, 0)), False)
sketch12.addGeometry(Part.LineSegment(App.Vector(-18.5, -38, 0), App.Vector(-13.7, -38, 0)), False)
sketch12.addGeometry(Part.LineSegment(App.Vector(-13.7, -38, 0), App.Vector(-13.7, -10.5, 0)), False)
sketch12.addGeometry(Part.LineSegment(App.Vector(-13.7, -10.5, 0), App.Vector(-41.6, -10.5, 0)), False)
sketch12.addConstraint(Sketcher.Constraint("Coincident", 0, 2, 1, 1))
sketch12.addConstraint(Sketcher.Constraint("Coincident", 1, 2, 2, 1))
sketch12.addConstraint(Sketcher.Constraint("Coincident", 2, 2, 3, 1))
sketch12.addConstraint(Sketcher.Constraint("Coincident", 3, 2, 0, 1))
sketch12.addConstraint(Sketcher.Constraint("Horizontal", 1))
sketch12.addConstraint(Sketcher.Constraint("Vertical", 2))
sketch12.addConstraint(Sketcher.Constraint("Horizontal", 3))
sketch12.addConstraint(Sketcher.Constraint("Angle", 0, Q("-50 deg")))
sketch12.addConstraint(Sketcher.Constraint("DistanceY", 2, 1, 2, 2, Q("27.5 mm")))
sketch12.addConstraint(Sketcher.Constraint("DistanceY", 0, 2, -1, 1, Q("38 mm")))
sketch12.addConstraint(Sketcher.Constraint("DistanceX", 0, 2, -1, 1, Q("18.5 mm")))
sketch12.addConstraint(Sketcher.Constraint("DistanceX", 1, 1, 1, 2, Q("4.760828 mm")))
pad7 = body.newObject("PartDesign::Pad", "Pad006")
pad7.Profile = sketch12
pad7.Length = 3

# Sketch on XZ plane
sketch13 = body.newObject("Sketcher::SketchObject", "Sketch012")
sketch13.AttachmentSupport = (doc.getObject("XZ_Plane"), [""])
sketch13.MapMode = "FlatFace"
sketch13.AttachmentOffset = App.Placement(App.Vector(0, 0, 38.460175), App.Rotation())
sketch13.addGeometry(Part.LineSegment(App.Vector(-18, -14, 0), App.Vector(-18, -38, 0)), False)
sketch13.addGeometry(Part.LineSegment(App.Vector(-18, -38, 0), App.Vector(-12, -38, 0)), False)
sketch13.addGeometry(Part.LineSegment(App.Vector(-12, -38, 0), App.Vector(-12, -14, 0)), False)
sketch13.addGeometry(Part.LineSegment(App.Vector(-12, -14, 0), App.Vector(-18, -14, 0)), False)
sketch13.addConstraint(Sketcher.Constraint("Coincident", 0, 2, 1, 1))
sketch13.addConstraint(Sketcher.Constraint("Coincident", 1, 2, 2, 1))
sketch13.addConstraint(Sketcher.Constraint("Coincident", 2, 2, 3, 1))
sketch13.addConstraint(Sketcher.Constraint("Coincident", 3, 2, 0, 1))
sketch13.addConstraint(Sketcher.Constraint("Vertical", 0))
sketch13.addConstraint(Sketcher.Constraint("Horizontal", 1))
sketch13.addConstraint(Sketcher.Constraint("Vertical", 2))
sketch13.addConstraint(Sketcher.Constraint("Horizontal", 3))
sketch13.addConstraint(Sketcher.Constraint("DistanceX", 1, 1, 1, 2, Q("6 mm")))
sketch13.addConstraint(Sketcher.Constraint("DistanceY", 0, 2, 0, 1, Q("24.5 mm")))
sketch13.addConstraint(Sketcher.Constraint("DistanceY", 0, 2, -1, 1, Q("38 mm")))
sketch13.addConstraint(Sketcher.Constraint("DistanceX", 0, 2, -1, 1, Q("18.5 mm")))
pad8 = body.newObject("PartDesign::Pad", "Pad007")
pad8.Profile = sketch13
pad8.Length = 6
pad8.Reversed = True

# Sketch on XZ plane
sketch14 = body.newObject("Sketcher::SketchObject", "Sketch013")
sketch14.AttachmentSupport = (doc.getObject("XZ_Plane"), [""])
sketch14.MapMode = "FlatFace"
sketch14.AttachmentOffset = App.Placement(App.Vector(0, 0, 35.460175), App.Rotation())
sketch14.addGeometry(Part.LineSegment(App.Vector(-18, -30, 0), App.Vector(-18, -51, 0)), False)
sketch14.addGeometry(Part.LineSegment(App.Vector(-18, -51, 0), App.Vector(-12, -51, 0)), False)
sketch14.addGeometry(Part.LineSegment(App.Vector(-12, -51, 0), App.Vector(-12, -30, 0)), False)
sketch14.addGeometry(Part.LineSegment(App.Vector(-12, -30, 0), App.Vector(-18, -30, 0)), False)
sketch14.addConstraint(Sketcher.Constraint("Coincident", 0, 2, 1, 1))
sketch14.addConstraint(Sketcher.Constraint("Coincident", 1, 2, 2, 1))
sketch14.addConstraint(Sketcher.Constraint("Coincident", 2, 2, 3, 1))
sketch14.addConstraint(Sketcher.Constraint("Coincident", 3, 2, 0, 1))
sketch14.addConstraint(Sketcher.Constraint("Vertical", 0))
sketch14.addConstraint(Sketcher.Constraint("Horizontal", 1))
sketch14.addConstraint(Sketcher.Constraint("Vertical", 2))
sketch14.addConstraint(Sketcher.Constraint("Horizontal", 3))
sketch14.addConstraint(Sketcher.Constraint("DistanceX", 1, 1, 1, 2, Q("6 mm")))
sketch14.addConstraint(Sketcher.Constraint("DistanceX", 0, 2, -1, 1, Q("18.5 mm")))
sketch14.addConstraint(Sketcher.Constraint("DistanceY", 0, 2, -1, 1, Q("51.3 mm")))
sketch14.addConstraint(Sketcher.Constraint("DistanceY", 0, 2, 0, 1, Q("21.281156 mm")))
pad9 = body.newObject("PartDesign::Pad", "Pad008")
pad9.Profile = sketch14
pad9.Length = 3

# Sketch on XZ plane
sketch15 = body.newObject("Sketcher::SketchObject", "Sketch014")
sketch15.AttachmentSupport = (doc.getObject("XZ_Plane"), [""])
sketch15.MapMode = "FlatFace"
sketch15.AttachmentOffset = App.Placement(App.Vector(0, 0, -7.839825), App.Rotation())
sketch15.addGeometry(Part.LineSegment(App.Vector(-12.5, -37.8, 0), App.Vector(-15.5, -37.8, 0)), False)
sketch15.addGeometry(Part.LineSegment(App.Vector(-15.5, -37.8, 0), App.Vector(-15.5, -11, 0)), False)
sketch15.addGeometry(Part.LineSegment(App.Vector(-15.5, -11, 0), App.Vector(16.5, -11, 0)), False)
sketch15.addGeometry(Part.LineSegment(App.Vector(16.5, -11, 0), App.Vector(16.5, -13.5, 0)), False)
sketch15.addGeometry(Part.LineSegment(App.Vector(16.5, -13.5, 0), App.Vector(-12.5, -37.8, 0)), False)
sketch15.addConstraint(Sketcher.Constraint("Coincident", 0, 2, 1, 1))
sketch15.addConstraint(Sketcher.Constraint("Coincident", 1, 2, 2, 1))
sketch15.addConstraint(Sketcher.Constraint("Coincident", 2, 2, 3, 1))
sketch15.addConstraint(Sketcher.Constraint("Coincident", 3, 2, 4, 1))
sketch15.addConstraint(Sketcher.Constraint("Coincident", 4, 2, 0, 1))
sketch15.addConstraint(Sketcher.Constraint("Horizontal", 0))
sketch15.addConstraint(Sketcher.Constraint("Vertical", 1))
sketch15.addConstraint(Sketcher.Constraint("Horizontal", 2))
sketch15.addConstraint(Sketcher.Constraint("Vertical", 3))
sketch15.addConstraint(Sketcher.Constraint("DistanceX", 0, 2, 0, 1, Q("3 mm")))
sketch15.addConstraint(Sketcher.Constraint("Angle", 4, Q("-140 deg")))
sketch15.addConstraint(Sketcher.Constraint("DistanceY", 3, 2, 3, 1, Q("2.5 mm")))
sketch15.addConstraint(Sketcher.Constraint("DistanceY", 1, 2, -1, 1, Q("11 mm")))
sketch15.addConstraint(Sketcher.Constraint("DistanceX", 0, 2, -1, 1, Q("15.5 mm")))
sketch15.addConstraint(Sketcher.Constraint("DistanceY", 1, 1, 1, 2, Q("26.821801 mm")))
pad10 = body.newObject("PartDesign::Pad", "Pad009")
pad10.Profile = sketch15
pad10.Length = 3
doc.recompute()

fillet2 = body.newObject("PartDesign::Fillet", "Fillet001")
fillet2.Base = (pad10, edges_at(pad10, [
    (-12.5, 6.34, -37.822),
    (-39.058, -36.96, -13.5),
    (-18.5, -36.96, -38),
    (16.486, 6.34, -13.5),
    (16.486, -36.96, -13.5),
    (-12.5, -36.96, -37.822),
    (-11.286, -38.46, -13.5),
    (-12.5, -35.46, -25.661),
    (1.993, -35.46, -13.5),
    (-12.5, -15.31, -13.5),
    (1.993, 4.84, -13.5),
]))
fillet2.Radius = 2

doc.recompute()
